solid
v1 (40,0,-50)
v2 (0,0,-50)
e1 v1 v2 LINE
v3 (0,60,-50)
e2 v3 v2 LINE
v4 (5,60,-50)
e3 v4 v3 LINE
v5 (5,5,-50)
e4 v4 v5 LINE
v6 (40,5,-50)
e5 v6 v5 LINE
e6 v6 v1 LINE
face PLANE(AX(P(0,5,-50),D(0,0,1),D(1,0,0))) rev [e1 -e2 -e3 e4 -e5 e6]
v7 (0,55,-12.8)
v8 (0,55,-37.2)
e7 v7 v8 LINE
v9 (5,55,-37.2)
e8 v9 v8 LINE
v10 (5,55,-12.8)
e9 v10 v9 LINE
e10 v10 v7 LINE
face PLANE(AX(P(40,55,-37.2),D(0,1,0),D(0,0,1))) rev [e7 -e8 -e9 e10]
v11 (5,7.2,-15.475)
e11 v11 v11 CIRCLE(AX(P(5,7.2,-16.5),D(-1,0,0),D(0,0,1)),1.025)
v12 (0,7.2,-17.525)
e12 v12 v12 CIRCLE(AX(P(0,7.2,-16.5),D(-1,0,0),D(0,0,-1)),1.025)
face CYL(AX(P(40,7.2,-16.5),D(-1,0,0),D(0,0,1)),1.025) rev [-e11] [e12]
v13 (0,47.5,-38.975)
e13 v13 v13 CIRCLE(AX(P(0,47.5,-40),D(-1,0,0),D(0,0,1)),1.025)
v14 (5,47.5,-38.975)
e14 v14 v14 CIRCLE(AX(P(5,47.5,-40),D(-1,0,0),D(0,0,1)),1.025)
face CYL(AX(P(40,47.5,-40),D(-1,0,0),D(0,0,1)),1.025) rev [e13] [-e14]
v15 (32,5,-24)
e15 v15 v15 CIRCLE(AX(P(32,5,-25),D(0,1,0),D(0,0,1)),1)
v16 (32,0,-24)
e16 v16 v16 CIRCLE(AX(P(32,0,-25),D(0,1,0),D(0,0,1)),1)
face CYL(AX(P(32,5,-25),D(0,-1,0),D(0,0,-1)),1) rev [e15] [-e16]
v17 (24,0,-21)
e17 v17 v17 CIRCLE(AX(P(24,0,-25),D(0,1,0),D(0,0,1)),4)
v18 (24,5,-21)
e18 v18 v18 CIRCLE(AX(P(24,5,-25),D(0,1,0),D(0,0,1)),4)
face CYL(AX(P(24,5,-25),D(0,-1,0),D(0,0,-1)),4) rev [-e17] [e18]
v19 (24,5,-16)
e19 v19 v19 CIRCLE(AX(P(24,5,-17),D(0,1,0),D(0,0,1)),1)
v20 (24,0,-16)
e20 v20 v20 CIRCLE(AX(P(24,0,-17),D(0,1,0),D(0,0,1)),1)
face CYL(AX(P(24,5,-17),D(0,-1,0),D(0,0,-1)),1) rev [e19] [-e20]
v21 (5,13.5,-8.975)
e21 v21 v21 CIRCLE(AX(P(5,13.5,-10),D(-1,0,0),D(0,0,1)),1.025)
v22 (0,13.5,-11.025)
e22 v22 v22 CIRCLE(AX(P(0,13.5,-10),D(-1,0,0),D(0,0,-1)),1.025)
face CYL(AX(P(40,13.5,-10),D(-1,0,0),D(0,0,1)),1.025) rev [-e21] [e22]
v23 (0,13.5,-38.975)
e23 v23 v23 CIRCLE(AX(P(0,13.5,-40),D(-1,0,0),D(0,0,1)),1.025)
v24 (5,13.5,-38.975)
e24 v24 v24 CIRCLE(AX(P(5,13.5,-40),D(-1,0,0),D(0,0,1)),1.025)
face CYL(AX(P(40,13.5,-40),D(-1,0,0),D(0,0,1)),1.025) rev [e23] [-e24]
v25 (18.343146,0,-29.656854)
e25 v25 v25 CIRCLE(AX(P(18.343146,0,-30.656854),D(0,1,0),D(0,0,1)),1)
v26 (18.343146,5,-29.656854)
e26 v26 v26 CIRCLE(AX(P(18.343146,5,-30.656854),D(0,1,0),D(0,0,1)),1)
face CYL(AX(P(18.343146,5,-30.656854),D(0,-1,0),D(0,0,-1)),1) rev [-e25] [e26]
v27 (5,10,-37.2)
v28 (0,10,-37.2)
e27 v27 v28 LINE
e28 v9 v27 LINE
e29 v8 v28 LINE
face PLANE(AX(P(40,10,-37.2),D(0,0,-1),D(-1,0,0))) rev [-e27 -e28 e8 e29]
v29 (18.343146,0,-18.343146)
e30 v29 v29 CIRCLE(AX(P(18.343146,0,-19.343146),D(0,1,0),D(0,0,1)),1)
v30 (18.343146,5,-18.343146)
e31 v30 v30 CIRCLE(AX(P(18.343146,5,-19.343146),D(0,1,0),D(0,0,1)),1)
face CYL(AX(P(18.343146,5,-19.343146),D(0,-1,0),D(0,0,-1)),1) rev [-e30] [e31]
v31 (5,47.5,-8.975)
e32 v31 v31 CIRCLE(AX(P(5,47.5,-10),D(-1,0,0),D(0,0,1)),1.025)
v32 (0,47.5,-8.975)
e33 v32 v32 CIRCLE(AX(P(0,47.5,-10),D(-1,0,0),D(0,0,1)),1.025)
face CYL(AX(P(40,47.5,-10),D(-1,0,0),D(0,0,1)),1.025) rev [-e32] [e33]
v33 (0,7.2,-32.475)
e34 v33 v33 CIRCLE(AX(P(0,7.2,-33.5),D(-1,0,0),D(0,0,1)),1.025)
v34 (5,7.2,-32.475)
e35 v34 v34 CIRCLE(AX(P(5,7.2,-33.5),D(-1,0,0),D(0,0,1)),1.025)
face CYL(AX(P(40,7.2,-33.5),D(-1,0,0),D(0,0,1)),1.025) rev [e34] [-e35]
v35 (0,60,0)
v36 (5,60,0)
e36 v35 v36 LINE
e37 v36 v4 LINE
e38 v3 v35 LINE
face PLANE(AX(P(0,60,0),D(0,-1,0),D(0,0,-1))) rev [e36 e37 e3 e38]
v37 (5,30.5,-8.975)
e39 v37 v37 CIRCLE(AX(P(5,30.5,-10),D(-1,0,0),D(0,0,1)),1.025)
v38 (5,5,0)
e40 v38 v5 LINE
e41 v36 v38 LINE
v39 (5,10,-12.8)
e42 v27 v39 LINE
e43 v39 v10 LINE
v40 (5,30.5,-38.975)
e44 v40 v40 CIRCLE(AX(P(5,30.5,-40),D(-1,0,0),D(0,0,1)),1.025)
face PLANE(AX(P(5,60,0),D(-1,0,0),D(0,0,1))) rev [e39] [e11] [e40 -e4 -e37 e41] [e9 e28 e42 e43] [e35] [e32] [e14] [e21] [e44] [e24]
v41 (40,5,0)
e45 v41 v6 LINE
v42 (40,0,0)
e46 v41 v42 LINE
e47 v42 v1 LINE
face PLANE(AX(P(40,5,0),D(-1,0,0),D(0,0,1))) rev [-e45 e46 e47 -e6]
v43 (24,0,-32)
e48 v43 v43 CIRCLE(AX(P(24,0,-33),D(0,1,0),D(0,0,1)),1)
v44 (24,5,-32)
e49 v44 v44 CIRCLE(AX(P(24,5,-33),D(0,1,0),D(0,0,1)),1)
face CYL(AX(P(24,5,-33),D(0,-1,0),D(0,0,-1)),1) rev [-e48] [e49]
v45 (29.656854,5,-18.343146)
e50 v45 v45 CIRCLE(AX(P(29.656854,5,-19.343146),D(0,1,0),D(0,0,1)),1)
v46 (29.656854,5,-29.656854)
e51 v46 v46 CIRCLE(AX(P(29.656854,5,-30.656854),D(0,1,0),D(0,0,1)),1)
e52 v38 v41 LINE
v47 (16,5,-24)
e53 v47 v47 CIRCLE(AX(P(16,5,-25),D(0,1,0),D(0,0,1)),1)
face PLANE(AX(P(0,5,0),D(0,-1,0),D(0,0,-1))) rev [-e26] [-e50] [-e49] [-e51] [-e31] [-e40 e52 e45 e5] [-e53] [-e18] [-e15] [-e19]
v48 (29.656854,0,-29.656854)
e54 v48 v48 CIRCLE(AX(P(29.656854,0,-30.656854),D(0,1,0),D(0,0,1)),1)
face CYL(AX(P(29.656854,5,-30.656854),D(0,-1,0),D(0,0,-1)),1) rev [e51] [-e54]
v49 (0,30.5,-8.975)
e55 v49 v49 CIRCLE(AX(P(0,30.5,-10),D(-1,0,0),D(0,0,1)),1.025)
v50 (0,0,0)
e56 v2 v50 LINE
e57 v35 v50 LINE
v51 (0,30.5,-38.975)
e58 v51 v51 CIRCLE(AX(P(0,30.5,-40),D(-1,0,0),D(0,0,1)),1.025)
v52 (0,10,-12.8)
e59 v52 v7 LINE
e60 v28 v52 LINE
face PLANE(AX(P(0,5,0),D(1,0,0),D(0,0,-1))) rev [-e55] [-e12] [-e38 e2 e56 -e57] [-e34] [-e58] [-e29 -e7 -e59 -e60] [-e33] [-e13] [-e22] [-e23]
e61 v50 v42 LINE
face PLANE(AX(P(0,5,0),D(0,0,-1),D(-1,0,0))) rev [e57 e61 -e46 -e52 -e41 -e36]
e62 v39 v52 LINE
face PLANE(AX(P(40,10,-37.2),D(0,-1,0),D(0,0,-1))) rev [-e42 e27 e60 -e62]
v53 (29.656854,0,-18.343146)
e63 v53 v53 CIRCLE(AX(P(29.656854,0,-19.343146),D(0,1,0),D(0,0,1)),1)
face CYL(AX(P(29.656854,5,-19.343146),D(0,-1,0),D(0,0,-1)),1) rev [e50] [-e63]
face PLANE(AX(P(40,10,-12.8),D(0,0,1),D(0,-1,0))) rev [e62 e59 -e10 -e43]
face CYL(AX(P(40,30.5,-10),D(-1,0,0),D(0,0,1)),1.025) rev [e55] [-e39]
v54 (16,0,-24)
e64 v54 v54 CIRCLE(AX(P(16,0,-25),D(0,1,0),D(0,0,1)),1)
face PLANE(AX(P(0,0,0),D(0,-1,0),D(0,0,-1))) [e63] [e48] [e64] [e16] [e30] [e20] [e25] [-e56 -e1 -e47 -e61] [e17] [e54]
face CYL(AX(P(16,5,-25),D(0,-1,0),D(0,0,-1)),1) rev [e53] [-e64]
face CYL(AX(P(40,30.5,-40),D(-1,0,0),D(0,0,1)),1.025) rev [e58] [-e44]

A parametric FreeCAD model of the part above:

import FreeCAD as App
import Part
import Sketcher
from FreeCAD import Vector
Q = App.Units.Quantity


def add_polygon(sketch, points):
    """Adds a closed chain of lines whose ends are joined by coincident constraints."""
    first, n = sketch.GeometryCount, len(points)
    for a, b in zip(points, points[1:] + points[:1]):
        sketch.addGeometry(Part.LineSegment(App.Vector(*a, 0), App.Vector(*b, 0)), False)
    for i in range(n):
        sketch.addConstraint(Sketcher.Constraint("Coincident", first + i, 2, first + (i + 1) % n, 1))

doc = App.newDocument("Part")
body = doc.addObject("PartDesign::Body", "Body")

# Sketch on XZ plane
sketch1 = body.newObject("Sketcher::SketchObject", "Sketch")
sketch1.AttachmentSupport = (doc.getObject("XZ_Plane"), [""])
sketch1.MapMode = "FlatFace"
add_polygon(sketch1, [(0, -50), (0, 0), (40, 0), (40, -50)])  # lines 0-3
sketch1.addGeometry(Part.Circle(Vector(18.3, -19.3, 0), Vector(0, 0, 1), 1), False)  # 4
sketch1.addGeometry(Part.Circle(Vector(24, -17, 0), Vector(0, 0, 1), 1), False)  # 5
sketch1.addGeometry(Part.Circle(Vector(29.7, -19.3, 0), Vector(0, 0, 1), 1), False)  # 6
sketch1.addGeometry(Part.Circle(Vector(16, -25, 0), Vector(0, 0, 1), 1), False)  # 7
sketch1.addGeometry(Part.Circle(Vector(18.3, -30.7, 0), Vector(0, 0, 1), 1), False)  # 8
sketch1.addGeometry(Part.Circle(Vector(24, -25, 0), Vector(0, 0, 1), 4), False)  # 9
sketch1.addGeometry(Part.Circle(Vector(32, -25, 0), Vector(0, 0, 1), 1), False)  # 10
sketch1.addGeometry(Part.Circle(Vector(24, -33, 0), Vector(0, 0, 1), 1), False)  # 11
sketch1.addGeometry(Part.Circle(Vector(29.7, -30.7, 0), Vector(0, 0, 1), 1), False)  # 12
sketch1.addConstraint([
    Sketcher.Constraint("Vertical", 0),
    Sketcher.Constraint("Horizontal", 1),
    Sketcher.Constraint("Vertical", 2),
    Sketcher.Constraint("Horizontal", 3),
    Sketcher.Constraint("Coincident", 0, 2, -1, 1),
    Sketcher.Constraint("Equal", 4, 5),
    Sketcher.Constraint("Equal", 5, 6),
    Sketcher.Constraint("Equal", 6, 7),
    Sketcher.Constraint("Equal", 7, 8),
    Sketcher.Constraint("Equal", 8, 10),
    Sketcher.Constraint("Equal", 10, 11),
    Sketcher.Constraint("Equal", 11, 12),
    Sketcher.Constraint("Horizontal", 4, 3, 6, 3),
    Sketcher.Constraint("Horizontal", 7, 3, 9, 3),
    Sketcher.Constraint("Horizontal", 9, 3, 10, 3),
    Sketcher.Constraint("Horizontal", 8, 3, 12, 3),
    Sketcher.Constraint("Vertical", 4, 3, 8, 3),
    Sketcher.Constraint("Vertical", 5, 3, 9, 3),
    Sketcher.Constraint("Vertical", 9, 3, 11, 3),
    Sketcher.Constraint("Vertical", 6, 3, 12, 3),
    Sketcher.Constraint("Diameter", 4, Q("2 mm")),
    Sketcher.Constraint("Diameter", 9, Q("8 mm")),
    Sketcher.Constraint("DistanceX", 1, 1, 1, 2, Q("40 mm")),
    Sketcher.Constraint("DistanceY", 0, 1, 0, 2, Q("50 mm")),
    Sketcher.Constraint("DistanceX", -1, 1, 5, 3, Q("24 mm")),
    Sketcher.Constraint("DistanceY", 5, 3, -1, 1, Q("17 mm")),
    Sketcher.Constraint("DistanceX", -1, 1, 7, 3, Q("16 mm")),
    Sketcher.Constraint("DistanceY", 7, 3, -1, 1, Q("25 mm")),
    Sketcher.Constraint("DistanceX", -1, 1, 10, 3, Q("32 mm")),
    Sketcher.Constraint("DistanceY", 11, 3, -1, 1, Q("33 mm")),
    Sketcher.Constraint("DistanceX", 4, 3, 6, 3, Q("11.313708 mm")),
    Sketcher.Constraint("DistanceY", 8, 3, 4, 3, Q("11.313708 mm")),
    Sketcher.Constraint("DistanceX", -1, 1, 4, 3, Q("18.343146 mm")),
    Sketcher.Constraint("DistanceY", 4, 3, -1, 1, Q("19.343146 mm")),
])
pad1 = body.newObject("PartDesign::Pad", "Pad")
pad1.Profile = sketch1
pad1.Length = 5
pad1.Reversed = True

# Sketch on XZ plane
sketch2 = body.newObject("Sketcher::SketchObject", "Sketch001")
sketch2.AttachmentSupport = (doc.getObject("XZ_Plane"), [""])
sketch2.MapMode = "FlatFace"
add_polygon(sketch2, [(0, -50), (0, 0), (5, 0), (5, -50)])  # lines 0-3
sketch2.addConstraint([
    Sketcher.Constraint("Vertical", 0),
    Sketcher.Constraint("Horizontal", 1),
    Sketcher.Constraint("Vertical", 2),
    Sketcher.Constraint("Horizontal", 3),
    Sketcher.Constraint("Coincident", 0, 2, -1, 1),
    Sketcher.Constraint("DistanceX", 1, 1, 1, 2, Q("5 mm")),
    Sketcher.Constraint("DistanceY", 0, 1, 0, 2, Q("50 mm")),
])
pad2 = body.newObject("PartDesign::Pad", "Pad001")
pad2.Profile = sketch2
pad2.Length = 60
pad2.Reversed = True

# Sketch on YZ plane
sketch3 = body.newObject("Sketcher::SketchObject", "Sketch002")
sketch3.AttachmentSupport = (doc.getObject("YZ_Plane"), [""])
sketch3.MapMode = "FlatFace"
sketch3.addGeometry(Part.Circle(Vector(47.5, -40, 0), Vector(0, 0, 1), 1), False)  # 0
sketch3.addGeometry(Part.Circle(Vector(47.5, -10, 0), Vector(0, 0, 1), 1), False)  # 1
sketch3.addGeometry(Part.Circle(Vector(30.5, -40, 0), Vector(0, 0, 1), 1), False)  # 2
sketch3.addGeometry(Part.Circle(Vector(30.5, -10, 0), Vector(0, 0, 1), 1), False)  # 3
sketch3.addGeometry(Part.Circle(Vector(13.5, -40, 0), Vector(0, 0, 1), 1), False)  # 4
sketch3.addGeometry(Part.Circle(Vector(7.2, -33.5, 0), Vector(0, 0, 1), 1), False)  # 5
sketch3.addGeometry(Part.Circle(Vector(7.2, -16.5, 0), Vector(0, 0, 1), 1), False)  # 6
sketch3.addGeometry(Part.Circle(Vector(13.5, -10, 0), Vector(0, 0, 1), 1), False)  # 7
add_polygon(sketch3, [(55, -37.2), (10, -37.2), (10, -12.8), (55, -12.8)])  # lines 8-11
sketch3.addConstraint([
    Sketcher.Constraint("Horizontal", 8),
    Sketcher.Constraint("Vertical", 9),
    Sketcher.Constraint("Horizontal", 10),
    Sketcher.Constraint("Vertical", 11),
    Sketcher.Constraint("Equal", 0, 1),
    Sketcher.Constraint("Equal", 1, 2),
    Sketcher.Constraint("Equal", 2, 3),
    Sketcher.Constraint("Equal", 3, 4),
    Sketcher.Constraint("Equal", 4, 5),
    Sketcher.Constraint("Equal", 5, 6),
    Sketcher.Constraint("Equal", 6, 7),
    Sketcher.Constraint("Horizontal", 0, 3, 2, 3),
    Sketcher.Constraint("Horizontal", 1, 3, 3, 3),
    Sketcher.Constraint("Horizontal", 2, 3, 4, 3),
    Sketcher.Constraint("Horizontal", 3, 3, 7, 3),
    Sketcher.Constraint("Vertical", 0, 3, 1, 3),
    Sketcher.Constraint("Vertical", 2, 3, 3, 3),
    Sketcher.Constraint("Vertical", 5, 3, 6, 3),
    Sketcher.Constraint("Vertical", 4, 3, 7, 3),
    Sketcher.Constraint("Diameter", 0, Q("2.05 mm")),
    Sketcher.Constraint("DistanceX", 8, 2, 8, 1, Q("45 mm")),
    Sketcher.Constraint("DistanceY", 9, 1, 9, 2, Q("24.4 mm")),
    Sketcher.Constraint("DistanceY", 0, 3, -1, 1, Q("40 mm")),
    Sketcher.Constraint("DistanceY", 1, 3, -1, 1, Q("10 mm")),
    Sketcher.Constraint("DistanceX", -1, 1, 8, 2, Q("10 mm")),
    Sketcher.Constraint("DistanceX", 2, 3, 0, 3, Q("17 mm")),
    Sketcher.Constraint("DistanceX", 4, 3, 2, 3, Q("17 mm")),
    Sketcher.Constraint("DistanceY", 5, 3, 6, 3, Q("17 mm")),
    Sketcher.Constraint("DistanceX", -1, 1, 0, 3, Q("47.5 mm")),
    Sketcher.Constraint("DistanceX", -1, 1, 5, 3, Q("7.2 mm")),
    Sketcher.Constraint("DistanceY", 5, 3, -1, 1, Q("33.5 mm")),
    Sketcher.Constraint("DistanceY", 8, 2, -1, 1, Q("37.2 mm")),
])
pocket1 = body.newObject("PartDesign::Pocket", "Pocket")
pocket1.Profile = sketch3
pocket1.Type = "ThroughAll"
pocket1.Reversed = True

doc.recompute()
